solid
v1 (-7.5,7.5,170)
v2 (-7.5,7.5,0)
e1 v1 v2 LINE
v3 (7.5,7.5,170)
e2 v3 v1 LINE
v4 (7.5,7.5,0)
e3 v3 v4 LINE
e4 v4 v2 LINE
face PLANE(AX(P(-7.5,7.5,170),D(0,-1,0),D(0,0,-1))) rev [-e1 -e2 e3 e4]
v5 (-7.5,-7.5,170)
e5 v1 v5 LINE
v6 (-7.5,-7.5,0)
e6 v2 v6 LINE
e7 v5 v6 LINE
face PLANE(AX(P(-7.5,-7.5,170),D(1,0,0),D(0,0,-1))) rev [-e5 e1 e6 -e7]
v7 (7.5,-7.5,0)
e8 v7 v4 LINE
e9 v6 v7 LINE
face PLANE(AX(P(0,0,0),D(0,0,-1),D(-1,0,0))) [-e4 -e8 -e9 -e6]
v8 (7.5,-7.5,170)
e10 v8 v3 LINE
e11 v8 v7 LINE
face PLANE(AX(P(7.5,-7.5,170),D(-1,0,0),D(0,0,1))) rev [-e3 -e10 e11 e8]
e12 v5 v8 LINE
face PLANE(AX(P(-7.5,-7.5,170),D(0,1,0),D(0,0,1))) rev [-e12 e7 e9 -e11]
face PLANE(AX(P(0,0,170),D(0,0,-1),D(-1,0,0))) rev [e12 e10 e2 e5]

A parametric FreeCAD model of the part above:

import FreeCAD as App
import Part
import Sketcher
from FreeCAD import Vector


def add_polygon(sketch, points):
    """Adds a closed chain of lines whose ends are joined by coincident constraints."""
    first, n = sketch.GeometryCount, len(points)
    for a, b in zip(points, points[1:] + points[:1]):
        sketch.addGeometry(Part.LineSegment(App.Vector(*a, 0), App.Vector(*b, 0)), False)
    for i in range(n):
        sketch.addConstraint(Sketcher.Constraint("Coincident", first + i, 2, first + (i + 1) % n, 1))

doc = App.newDocument("Part")
body = doc.addObject("PartDesign::Body", "Body")

# Sketch on XY plane
sketch1 = doc.addObject("Sketcher::SketchObject", "Sketch")
body.addObject(sketch1)
sketch1.AttachmentSupport = (doc.XY_Plane, [""])
sketch1.MapMode = "FlatFace"
add_polygon(sketch1, [(-8, 8), (-8, -8), (8, -8), (8, 8)])  # lines 0-3
sketch1.addConstraint(Sketcher.Constraint("Vertical", 0))
sketch1.addConstraint(Sketcher.Constraint("Horizontal", 1))
sketch1.addConstraint(Sketcher.Constraint("Vertical", 2))
sketch1.addConstraint(Sketcher.Constraint("Horizontal", 3))
sketch1.addConstraint(Sketcher.Constraint("Symmetric", 0, 2, 2, 2, -1, 1))
sketch1.addConstraint(Sketcher.Constraint("Equal", 3, 0))
sketch1.addConstraint(Sketcher.Constraint("DistanceX", 1, 1, 1, 2, 15.0))
pad1 = doc.addObject("PartDesign::Pad", "Pad")
body.addObject(pad1)
pad1.Profile = sketch1
pad1.Length = 170

doc.recompute()
